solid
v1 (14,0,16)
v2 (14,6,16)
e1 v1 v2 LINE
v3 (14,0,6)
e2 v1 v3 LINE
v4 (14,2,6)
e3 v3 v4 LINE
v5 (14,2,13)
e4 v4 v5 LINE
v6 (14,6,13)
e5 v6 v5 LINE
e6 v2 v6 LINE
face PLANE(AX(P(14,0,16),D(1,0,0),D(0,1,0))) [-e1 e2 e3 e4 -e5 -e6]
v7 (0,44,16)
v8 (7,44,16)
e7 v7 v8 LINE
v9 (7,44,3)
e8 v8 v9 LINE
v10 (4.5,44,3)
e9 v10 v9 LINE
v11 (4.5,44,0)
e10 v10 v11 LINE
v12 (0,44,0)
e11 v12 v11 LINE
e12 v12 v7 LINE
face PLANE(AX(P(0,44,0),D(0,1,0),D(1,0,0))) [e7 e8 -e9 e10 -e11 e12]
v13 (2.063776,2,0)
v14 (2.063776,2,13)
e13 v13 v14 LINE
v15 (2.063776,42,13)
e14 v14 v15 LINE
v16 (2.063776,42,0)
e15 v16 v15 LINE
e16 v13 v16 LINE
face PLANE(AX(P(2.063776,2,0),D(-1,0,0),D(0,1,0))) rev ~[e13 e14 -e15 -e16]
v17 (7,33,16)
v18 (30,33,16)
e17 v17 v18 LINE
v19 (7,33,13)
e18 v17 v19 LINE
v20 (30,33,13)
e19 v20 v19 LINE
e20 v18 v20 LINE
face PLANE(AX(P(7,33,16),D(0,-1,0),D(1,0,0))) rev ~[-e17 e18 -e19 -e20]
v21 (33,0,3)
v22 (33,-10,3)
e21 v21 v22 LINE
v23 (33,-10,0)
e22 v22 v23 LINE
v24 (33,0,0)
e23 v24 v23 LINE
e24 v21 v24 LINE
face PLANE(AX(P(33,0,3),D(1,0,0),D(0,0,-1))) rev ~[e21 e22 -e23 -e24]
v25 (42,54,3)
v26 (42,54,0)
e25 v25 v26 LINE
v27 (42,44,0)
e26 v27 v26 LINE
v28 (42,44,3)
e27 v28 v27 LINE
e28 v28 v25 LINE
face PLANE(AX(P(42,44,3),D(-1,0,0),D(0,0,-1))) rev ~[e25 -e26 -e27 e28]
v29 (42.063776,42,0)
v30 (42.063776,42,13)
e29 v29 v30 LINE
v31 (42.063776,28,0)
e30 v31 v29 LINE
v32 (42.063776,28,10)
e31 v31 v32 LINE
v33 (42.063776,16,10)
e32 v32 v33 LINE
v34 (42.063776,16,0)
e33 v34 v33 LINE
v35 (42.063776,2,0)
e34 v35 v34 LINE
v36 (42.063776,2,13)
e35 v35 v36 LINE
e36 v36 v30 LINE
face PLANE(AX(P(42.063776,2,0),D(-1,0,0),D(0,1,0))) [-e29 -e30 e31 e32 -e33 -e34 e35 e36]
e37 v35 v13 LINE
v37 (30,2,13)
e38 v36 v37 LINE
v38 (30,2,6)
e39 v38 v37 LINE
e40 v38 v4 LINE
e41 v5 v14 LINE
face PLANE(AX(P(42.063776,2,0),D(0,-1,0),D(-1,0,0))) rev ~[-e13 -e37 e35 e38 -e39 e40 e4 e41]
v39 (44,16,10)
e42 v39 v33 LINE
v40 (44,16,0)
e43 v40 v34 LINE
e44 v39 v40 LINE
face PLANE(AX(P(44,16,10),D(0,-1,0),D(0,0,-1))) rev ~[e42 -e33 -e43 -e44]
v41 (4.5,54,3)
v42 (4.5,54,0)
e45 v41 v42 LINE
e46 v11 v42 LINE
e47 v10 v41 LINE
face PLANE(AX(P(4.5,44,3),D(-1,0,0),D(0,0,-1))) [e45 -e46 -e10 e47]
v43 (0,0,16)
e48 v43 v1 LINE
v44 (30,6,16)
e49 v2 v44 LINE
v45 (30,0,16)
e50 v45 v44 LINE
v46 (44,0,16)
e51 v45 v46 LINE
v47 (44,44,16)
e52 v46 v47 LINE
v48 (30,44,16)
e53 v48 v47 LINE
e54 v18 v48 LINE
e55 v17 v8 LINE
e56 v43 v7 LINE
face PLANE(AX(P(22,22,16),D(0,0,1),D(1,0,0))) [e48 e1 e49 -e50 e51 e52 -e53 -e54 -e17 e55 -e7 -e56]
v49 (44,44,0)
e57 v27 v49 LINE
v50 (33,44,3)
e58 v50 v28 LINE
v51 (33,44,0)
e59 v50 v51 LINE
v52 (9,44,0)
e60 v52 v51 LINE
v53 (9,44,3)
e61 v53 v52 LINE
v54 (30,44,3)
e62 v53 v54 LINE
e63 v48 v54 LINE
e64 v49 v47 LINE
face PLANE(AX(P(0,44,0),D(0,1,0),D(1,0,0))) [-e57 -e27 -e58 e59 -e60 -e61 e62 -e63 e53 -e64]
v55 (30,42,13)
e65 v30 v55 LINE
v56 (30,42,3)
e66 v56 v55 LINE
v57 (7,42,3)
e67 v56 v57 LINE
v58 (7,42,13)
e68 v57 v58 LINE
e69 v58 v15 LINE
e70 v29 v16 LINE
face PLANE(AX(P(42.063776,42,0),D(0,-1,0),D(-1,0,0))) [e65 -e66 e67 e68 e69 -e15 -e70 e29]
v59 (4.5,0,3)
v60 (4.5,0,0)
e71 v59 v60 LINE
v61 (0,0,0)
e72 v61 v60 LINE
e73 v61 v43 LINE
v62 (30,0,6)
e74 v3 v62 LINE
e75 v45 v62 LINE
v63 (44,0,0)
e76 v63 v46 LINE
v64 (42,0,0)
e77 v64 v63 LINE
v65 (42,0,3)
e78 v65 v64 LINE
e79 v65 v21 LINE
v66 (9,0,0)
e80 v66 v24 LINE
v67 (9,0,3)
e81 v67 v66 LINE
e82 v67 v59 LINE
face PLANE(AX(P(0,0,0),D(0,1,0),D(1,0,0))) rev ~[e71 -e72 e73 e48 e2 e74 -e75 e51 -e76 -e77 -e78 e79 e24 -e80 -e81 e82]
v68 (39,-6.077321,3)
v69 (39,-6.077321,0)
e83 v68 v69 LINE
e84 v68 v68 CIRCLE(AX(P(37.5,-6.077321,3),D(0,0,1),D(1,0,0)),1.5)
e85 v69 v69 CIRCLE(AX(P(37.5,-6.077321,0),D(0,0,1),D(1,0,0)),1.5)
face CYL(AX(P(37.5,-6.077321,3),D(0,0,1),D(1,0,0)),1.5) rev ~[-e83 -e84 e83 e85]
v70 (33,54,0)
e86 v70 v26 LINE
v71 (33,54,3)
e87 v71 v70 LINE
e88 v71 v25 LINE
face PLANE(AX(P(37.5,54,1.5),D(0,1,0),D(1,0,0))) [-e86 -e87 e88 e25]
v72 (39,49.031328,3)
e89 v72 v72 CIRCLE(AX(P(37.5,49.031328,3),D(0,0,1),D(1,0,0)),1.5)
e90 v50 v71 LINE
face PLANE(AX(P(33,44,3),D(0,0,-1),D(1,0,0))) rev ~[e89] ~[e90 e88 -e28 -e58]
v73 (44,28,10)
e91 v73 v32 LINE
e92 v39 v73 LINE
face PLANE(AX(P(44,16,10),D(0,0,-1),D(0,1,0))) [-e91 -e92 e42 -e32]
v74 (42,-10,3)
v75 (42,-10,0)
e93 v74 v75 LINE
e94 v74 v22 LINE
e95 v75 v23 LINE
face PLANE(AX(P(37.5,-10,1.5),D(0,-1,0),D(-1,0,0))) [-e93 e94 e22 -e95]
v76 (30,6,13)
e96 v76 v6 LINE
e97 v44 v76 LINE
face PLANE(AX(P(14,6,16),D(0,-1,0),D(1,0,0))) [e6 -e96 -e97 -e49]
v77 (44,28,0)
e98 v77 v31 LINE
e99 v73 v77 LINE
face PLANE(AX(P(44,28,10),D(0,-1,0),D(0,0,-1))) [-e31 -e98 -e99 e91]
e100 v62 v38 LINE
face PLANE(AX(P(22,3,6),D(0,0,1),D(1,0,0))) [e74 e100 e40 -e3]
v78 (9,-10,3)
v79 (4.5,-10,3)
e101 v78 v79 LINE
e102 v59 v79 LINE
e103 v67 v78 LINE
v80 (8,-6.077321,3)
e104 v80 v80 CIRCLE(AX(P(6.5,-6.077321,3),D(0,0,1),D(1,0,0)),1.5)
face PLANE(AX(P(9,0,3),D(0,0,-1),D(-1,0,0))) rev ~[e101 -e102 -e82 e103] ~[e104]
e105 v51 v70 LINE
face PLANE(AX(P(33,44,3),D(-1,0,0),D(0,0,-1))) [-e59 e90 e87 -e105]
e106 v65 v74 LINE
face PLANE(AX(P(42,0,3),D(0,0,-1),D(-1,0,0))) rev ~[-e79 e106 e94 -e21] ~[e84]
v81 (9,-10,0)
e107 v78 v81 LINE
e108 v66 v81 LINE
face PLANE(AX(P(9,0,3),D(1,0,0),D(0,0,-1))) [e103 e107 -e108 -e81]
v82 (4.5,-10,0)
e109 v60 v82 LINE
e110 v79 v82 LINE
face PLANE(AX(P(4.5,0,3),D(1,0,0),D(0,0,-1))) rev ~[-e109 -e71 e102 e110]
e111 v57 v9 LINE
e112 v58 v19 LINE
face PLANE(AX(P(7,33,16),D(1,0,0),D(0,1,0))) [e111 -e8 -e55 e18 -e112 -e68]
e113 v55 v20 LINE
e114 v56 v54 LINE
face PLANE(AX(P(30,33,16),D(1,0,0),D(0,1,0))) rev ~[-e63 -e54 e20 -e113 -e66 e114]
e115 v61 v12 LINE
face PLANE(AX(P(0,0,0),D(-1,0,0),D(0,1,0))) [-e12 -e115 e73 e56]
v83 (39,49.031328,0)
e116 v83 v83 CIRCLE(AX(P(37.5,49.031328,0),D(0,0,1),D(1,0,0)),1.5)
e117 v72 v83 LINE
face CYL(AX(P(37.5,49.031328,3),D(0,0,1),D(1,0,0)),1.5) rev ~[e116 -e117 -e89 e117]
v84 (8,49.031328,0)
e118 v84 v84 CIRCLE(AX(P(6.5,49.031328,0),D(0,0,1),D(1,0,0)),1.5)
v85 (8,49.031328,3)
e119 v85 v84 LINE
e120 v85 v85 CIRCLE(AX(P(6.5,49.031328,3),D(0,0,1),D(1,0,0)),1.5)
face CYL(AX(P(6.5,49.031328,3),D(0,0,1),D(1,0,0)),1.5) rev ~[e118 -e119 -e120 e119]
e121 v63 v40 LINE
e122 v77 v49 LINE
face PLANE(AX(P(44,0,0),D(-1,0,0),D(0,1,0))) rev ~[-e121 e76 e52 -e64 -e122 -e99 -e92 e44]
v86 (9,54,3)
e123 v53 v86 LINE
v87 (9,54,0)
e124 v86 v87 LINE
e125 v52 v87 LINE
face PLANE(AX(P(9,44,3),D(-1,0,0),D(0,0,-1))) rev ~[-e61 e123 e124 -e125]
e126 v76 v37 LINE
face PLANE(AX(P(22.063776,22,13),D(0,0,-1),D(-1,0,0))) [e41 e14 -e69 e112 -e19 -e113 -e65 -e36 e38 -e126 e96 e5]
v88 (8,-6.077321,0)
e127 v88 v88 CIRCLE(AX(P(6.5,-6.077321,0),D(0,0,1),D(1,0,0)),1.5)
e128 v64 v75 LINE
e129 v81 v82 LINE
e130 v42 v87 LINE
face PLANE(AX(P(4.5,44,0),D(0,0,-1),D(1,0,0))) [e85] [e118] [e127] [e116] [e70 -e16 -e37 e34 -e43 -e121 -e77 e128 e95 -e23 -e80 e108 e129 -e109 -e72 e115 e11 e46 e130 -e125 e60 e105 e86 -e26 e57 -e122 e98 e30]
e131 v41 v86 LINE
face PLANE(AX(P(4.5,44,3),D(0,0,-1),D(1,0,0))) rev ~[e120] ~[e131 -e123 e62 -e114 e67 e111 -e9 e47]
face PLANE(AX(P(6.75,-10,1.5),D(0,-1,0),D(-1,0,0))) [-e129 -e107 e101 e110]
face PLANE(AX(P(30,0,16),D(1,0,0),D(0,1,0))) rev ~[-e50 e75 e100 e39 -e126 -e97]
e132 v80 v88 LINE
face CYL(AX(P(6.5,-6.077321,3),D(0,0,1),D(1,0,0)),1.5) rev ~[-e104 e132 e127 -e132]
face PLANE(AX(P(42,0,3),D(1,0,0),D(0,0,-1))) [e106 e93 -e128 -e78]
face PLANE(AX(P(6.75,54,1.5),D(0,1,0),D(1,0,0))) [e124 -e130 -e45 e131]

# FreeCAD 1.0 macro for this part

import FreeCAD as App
import Part
import Sketcher
Q = App.Units.Quantity


def add_polygon(sketch, points):
    """Adds a closed chain of lines whose ends are joined by coincident constraints."""
    first, n = sketch.GeometryCount, len(points)
    for a, b in zip(points, points[1:] + points[:1]):
        sketch.addGeometry(Part.LineSegment(App.Vector(*a, 0), App.Vector(*b, 0)), False)
    for i in range(n):
        sketch.addConstraint(Sketcher.Constraint("Coincident", first + i, 2, first + (i + 1) % n, 1))

doc = App.newDocument("Part")
body = doc.addObject("PartDesign::Body", "Body")

# Sketch on XY plane
sketch1 = doc.addObject("Sketcher::SketchObject", "Sketch")
body.addObject(sketch1)
sketch1.AttachmentSupport = (doc.XY_Plane, [""])
sketch1.MapMode = "FlatFace"
add_polygon(sketch1, [(0, 44), (0, 0), (44, 0), (44, 44)])  # lines 0-3
sketch1.addConstraint([
    Sketcher.Constraint("Vertical", 0),
    Sketcher.Constraint("Horizontal", 1),
    Sketcher.Constraint("Vertical", 2),
    Sketcher.Constraint("Horizontal", 3),
    Sketcher.Constraint("Coincident", 0, 2, -1, 1),
    Sketcher.Constraint("Equal", 3, 0),
    Sketcher.Constraint("DistanceX", 1, 1, 1, 2, Q("44 mm")),
])
pad1 = doc.addObject("PartDesign::Pad", "Pad")
body.addObject(pad1)
pad1.Profile = sketch1
pad1.Length = 16

# Sketch on XY plane
sketch2 = doc.addObject("Sketcher::SketchObject", "Sketch001")
body.addObject(sketch2)
sketch2.AttachmentSupport = (doc.XY_Plane, [""])
sketch2.MapMode = "FlatFace"
add_polygon(sketch2, [(42, 42), (42, 2), (2, 2), (2, 42)])  # lines 0-3
sketch2.addConstraint([
    Sketcher.Constraint("Vertical", 0),
    Sketcher.Constraint("Horizontal", 1),
    Sketcher.Constraint("Vertical", 2),
    Sketcher.Constraint("Horizontal", 3),
    Sketcher.Constraint("Equal", 3, 0),
    Sketcher.Constraint("DistanceX", 1, 2, 1, 1, Q("40 mm")),
    Sketcher.Constraint("DistanceY", -1, 1, 0, 2, Q("2 mm")),
    Sketcher.Constraint("DistanceX", -1, 1, 0, 2, Q("42.063776 mm")),
])
pocket1 = doc.addObject("PartDesign::Pocket", "Pocket")
body.addObject(pocket1)
pocket1.Profile = sketch2
pocket1.Length = 13
pocket1.Reversed = True

# Sketch on XY plane
sketch3 = doc.addObject("Sketcher::SketchObject", "Sketch002")
body.addObject(sketch3)
sketch3.AttachmentSupport = (doc.XY_Plane, [""])
sketch3.MapMode = "FlatFace"
sketch3.AttachmentOffset = App.Placement(App.Vector(0, 0, 16), App.Rotation())
add_polygon(sketch3, [(7, 44), (7, 33), (30, 33), (30, 44)])  # lines 0-3
sketch3.addConstraint([
    Sketcher.Constraint("Vertical", 0),
    Sketcher.Constraint("Horizontal", 1),
    Sketcher.Constraint("Vertical", 2),
    Sketcher.Constraint("Horizontal", 3),
    Sketcher.Constraint("DistanceX", 1, 1, 1, 2, Q("23 mm")),
    Sketcher.Constraint("DistanceY", 0, 2, 0, 1, Q("11 mm")),
    Sketcher.Constraint("DistanceX", -1, 1, 0, 2, Q("7 mm")),
    Sketcher.Constraint("DistanceY", -1, 1, 0, 2, Q("33 mm")),
])
pocket2 = doc.addObject("PartDesign::Pocket", "Pocket001")
body.addObject(pocket2)
pocket2.Profile = sketch3
pocket2.Length = 13

# Sketch on XY plane
sketch4 = doc.addObject("Sketcher::SketchObject", "Sketch003")
body.addObject(sketch4)
sketch4.AttachmentSupport = (doc.XY_Plane, [""])
sketch4.MapMode = "FlatFace"
sketch4.AttachmentOffset = App.Placement(App.Vector(0, 0, 16), App.Rotation())
add_polygon(sketch4, [(14, 6), (14, 0), (30, 0), (30, 6)])  # lines 0-3
sketch4.addConstraint([
    Sketcher.Constraint("Vertical", 0),
    Sketcher.Constraint("Horizontal", 1),
    Sketcher.Constraint("Vertical", 2),
    Sketcher.Constraint("Horizontal", 3),
    Sketcher.Constraint("PointOnObject", 0, 2, -1),
    Sketcher.Constraint("DistanceX", 1, 1, 1, 2, Q("16 mm")),
    Sketcher.Constraint("DistanceY", 0, 2, 0, 1, Q("6 mm")),
    Sketcher.Constraint("DistanceX", -1, 1, 0, 2, Q("14 mm")),
])
pocket3 = doc.addObject("PartDesign::Pocket", "Pocket002")
body.addObject(pocket3)
pocket3.Profile = sketch4
pocket3.Length = 10

# Sketch on YZ plane
sketch5 = doc.addObject("Sketcher::SketchObject", "Sketch004")
body.addObject(sketch5)
sketch5.AttachmentSupport = (doc.YZ_Plane, [""])
sketch5.MapMode = "FlatFace"
sketch5.AttachmentOffset = App.Placement(App.Vector(0, 0, 44), App.Rotation())
add_polygon(sketch5, [(28, 10), (16, 10), (16, 0), (28, 0)])  # lines 0-3
sketch5.addConstraint([
    Sketcher.Constraint("Horizontal", 0),
    Sketcher.Constraint("Vertical", 1),
    Sketcher.Constraint("Horizontal", 2),
    Sketcher.Constraint("Vertical", 3),
    Sketcher.Constraint("PointOnObject", 1, 2, -1),
    Sketcher.Constraint("DistanceX", 0, 2, 0, 1, Q("12 mm")),
    Sketcher.Constraint("DistanceY", 1, 2, 1, 1, Q("10 mm")),
    Sketcher.Constraint("DistanceX", -1, 1, 0, 2, Q("16 mm")),
])
pocket4 = doc.addObject("PartDesign::Pocket", "Pocket003")
body.addObject(pocket4)
pocket4.Profile = sketch5
pocket4.Length = 5

# Sketch on XZ plane
sketch6 = doc.addObject("Sketcher::SketchObject", "Sketch005")
body.addObject(sketch6)
sketch6.AttachmentSupport = (doc.XZ_Plane, [""])
sketch6.MapMode = "FlatFace"
add_polygon(sketch6, [(9, 0), (9, 3), (4.5, 3), (4.5, 0)])  # lines 0-3
add_polygon(sketch6, [(42, 0), (42, 3), (33, 3), (33, 0)])  # lines 4-7
sketch6.addConstraint([
    Sketcher.Constraint("Vertical", 0),
    Sketcher.Constraint("Horizontal", 1),
    Sketcher.Constraint("Vertical", 2),
    Sketcher.Constraint("Horizontal", 3),
    Sketcher.Constraint("Vertical", 4),
    Sketcher.Constraint("Horizontal", 5),
    Sketcher.Constraint("Vertical", 6),
    Sketcher.Constraint("Horizontal", 7),
    Sketcher.Constraint("PointOnObject", 2, 2, -1),
    Sketcher.Constraint("PointOnObject", 6, 2, -1),
    Sketcher.Constraint("Horizontal", 1, 2, 4, 2),
    Sketcher.Constraint("DistanceX", 5, 2, 5, 1, Q("9 mm")),
    Sketcher.Constraint("DistanceY", 0, 1, 0, 2, Q("3 mm")),
    Sketcher.Constraint("DistanceX", 1, 2, 1, 1, Q("4.5 mm")),
    Sketcher.Constraint("DistanceX", -1, 1, 0, 2, Q("9 mm")),
    Sketcher.Constraint("DistanceX", -1, 1, 4, 2, Q("42 mm")),
])
pad2 = doc.addObject("PartDesign::Pad", "Pad001")
body.addObject(pad2)
pad2.Profile = sketch6
pad2.Length = 10

# Sketch on XY plane
sketch7 = doc.addObject("Sketcher::SketchObject", "Sketch006")
body.addObject(sketch7)
sketch7.AttachmentSupport = (doc.XY_Plane, [""])
sketch7.MapMode = "FlatFace"
sketch7.AttachmentOffset = App.Placement(App.Vector(0, 0, 3), App.Rotation())
sketch7.addGeometry([
    Part.Circle(App.Vector(6.5, -6.1, 0), App.Vector(0, 0, 1), 1.5),
    Part.Circle(App.Vector(37.5, -6.1, 0), App.Vector(0, 0, 1), 1.5),
], False)
sketch7.addConstraint([
    Sketcher.Constraint("Equal", 0, 1),
    Sketcher.Constraint("Horizontal", 0, 3, 1, 3),
    Sketcher.Constraint("Diameter", 0, Q("3 mm")),
    Sketcher.Constraint("DistanceX", 0, 3, 1, 3, Q("31 mm")),
    Sketcher.Constraint("DistanceX", -1, 1, 0, 3, Q("6.5 mm")),
    Sketcher.Constraint("DistanceY", 0, 3, -1, 1, Q("6.077321 mm")),
])
pocket5 = doc.addObject("PartDesign::Pocket", "Pocket004")
body.addObject(pocket5)
pocket5.Profile = sketch7
pocket5.Length = 10

# Sketch on XZ plane
sketch8 = doc.addObject("Sketcher::SketchObject", "Sketch007")
body.addObject(sketch8)
sketch8.AttachmentSupport = (doc.XZ_Plane, [""])
sketch8.MapMode = "FlatFace"
sketch8.AttachmentOffset = App.Placement(App.Vector(0, 0, -44), App.Rotation())
add_polygon(sketch8, [(33, 0), (33, 3), (42, 3), (42, 0)])  # lines 0-3
add_polygon(sketch8, [(4.5, 0), (4.5, 3), (9, 3), (9, 0)])  # lines 4-7
sketch8.addConstraint([
    Sketcher.Constraint("Vertical", 0),
    Sketcher.Constraint("Horizontal", 1),
    Sketcher.Constraint("Vertical", 2),
    Sketcher.Constraint("Horizontal", 3),
    Sketcher.Constraint("Vertical", 4),
    Sketcher.Constraint("Horizontal", 5),
    Sketcher.Constraint("Vertical", 6),
    Sketcher.Constraint("Horizontal", 7),
    Sketcher.Constraint("PointOnObject", 2, 2, -1),
    Sketcher.Constraint("PointOnObject", 6, 2, -1),
    Sketcher.Constraint("Horizontal", 1, 2, 4, 2),
    Sketcher.Constraint("DistanceX", 1, 1, 1, 2, Q("9 mm")),
    Sketcher.Constraint("DistanceY", 0, 1, 0, 2, Q("3 mm")),
    Sketcher.Constraint("DistanceX", 5, 1, 5, 2, Q("4.5 mm")),
    Sketcher.Constraint("DistanceX", -1, 1, 0, 2, Q("33 mm")),
    Sketcher.Constraint("DistanceX", -1, 1, 5, 2, Q("9 mm")),
])
pad3 = doc.addObject("PartDesign::Pad", "Pad002")
body.addObject(pad3)
pad3.Profile = sketch8
pad3.Length = 10
pad3.Reversed = True

# Sketch on XY plane
sketch9 = doc.addObject("Sketcher::SketchObject", "Sketch008")
body.addObject(sketch9)
sketch9.AttachmentSupport = (doc.XY_Plane, [""])
sketch9.MapMode = "FlatFace"
sketch9.AttachmentOffset = App.Placement(App.Vector(0, 0, 3), App.Rotation())
sketch9.addGeometry([
    Part.Circle(App.Vector(37.5, 49, 0), App.Vector(0, 0, 1), 1.5),
    Part.Circle(App.Vector(6.5, 49, 0), App.Vector(0, 0, 1), 1.5),
], False)
sketch9.addConstraint([
    Sketcher.Constraint("Equal", 0, 1),
    Sketcher.Constraint("Horizontal", 0, 3, 1, 3),
    Sketcher.Constraint("Diameter", 0, Q("3 mm")),
    Sketcher.Constraint("DistanceX", 1, 3, 0, 3, Q("31 mm")),
    Sketcher.Constraint("DistanceX", -1, 1, 0, 3, Q("37.5 mm")),
    Sketcher.Constraint("DistanceY", -1, 1, 0, 3, Q("49.031328 mm")),
])
pocket6 = doc.addObject("PartDesign::Pocket", "Pocket005")
body.addObject(pocket6)
pocket6.Profile = sketch9
pocket6.Length = 10

doc.recompute()
